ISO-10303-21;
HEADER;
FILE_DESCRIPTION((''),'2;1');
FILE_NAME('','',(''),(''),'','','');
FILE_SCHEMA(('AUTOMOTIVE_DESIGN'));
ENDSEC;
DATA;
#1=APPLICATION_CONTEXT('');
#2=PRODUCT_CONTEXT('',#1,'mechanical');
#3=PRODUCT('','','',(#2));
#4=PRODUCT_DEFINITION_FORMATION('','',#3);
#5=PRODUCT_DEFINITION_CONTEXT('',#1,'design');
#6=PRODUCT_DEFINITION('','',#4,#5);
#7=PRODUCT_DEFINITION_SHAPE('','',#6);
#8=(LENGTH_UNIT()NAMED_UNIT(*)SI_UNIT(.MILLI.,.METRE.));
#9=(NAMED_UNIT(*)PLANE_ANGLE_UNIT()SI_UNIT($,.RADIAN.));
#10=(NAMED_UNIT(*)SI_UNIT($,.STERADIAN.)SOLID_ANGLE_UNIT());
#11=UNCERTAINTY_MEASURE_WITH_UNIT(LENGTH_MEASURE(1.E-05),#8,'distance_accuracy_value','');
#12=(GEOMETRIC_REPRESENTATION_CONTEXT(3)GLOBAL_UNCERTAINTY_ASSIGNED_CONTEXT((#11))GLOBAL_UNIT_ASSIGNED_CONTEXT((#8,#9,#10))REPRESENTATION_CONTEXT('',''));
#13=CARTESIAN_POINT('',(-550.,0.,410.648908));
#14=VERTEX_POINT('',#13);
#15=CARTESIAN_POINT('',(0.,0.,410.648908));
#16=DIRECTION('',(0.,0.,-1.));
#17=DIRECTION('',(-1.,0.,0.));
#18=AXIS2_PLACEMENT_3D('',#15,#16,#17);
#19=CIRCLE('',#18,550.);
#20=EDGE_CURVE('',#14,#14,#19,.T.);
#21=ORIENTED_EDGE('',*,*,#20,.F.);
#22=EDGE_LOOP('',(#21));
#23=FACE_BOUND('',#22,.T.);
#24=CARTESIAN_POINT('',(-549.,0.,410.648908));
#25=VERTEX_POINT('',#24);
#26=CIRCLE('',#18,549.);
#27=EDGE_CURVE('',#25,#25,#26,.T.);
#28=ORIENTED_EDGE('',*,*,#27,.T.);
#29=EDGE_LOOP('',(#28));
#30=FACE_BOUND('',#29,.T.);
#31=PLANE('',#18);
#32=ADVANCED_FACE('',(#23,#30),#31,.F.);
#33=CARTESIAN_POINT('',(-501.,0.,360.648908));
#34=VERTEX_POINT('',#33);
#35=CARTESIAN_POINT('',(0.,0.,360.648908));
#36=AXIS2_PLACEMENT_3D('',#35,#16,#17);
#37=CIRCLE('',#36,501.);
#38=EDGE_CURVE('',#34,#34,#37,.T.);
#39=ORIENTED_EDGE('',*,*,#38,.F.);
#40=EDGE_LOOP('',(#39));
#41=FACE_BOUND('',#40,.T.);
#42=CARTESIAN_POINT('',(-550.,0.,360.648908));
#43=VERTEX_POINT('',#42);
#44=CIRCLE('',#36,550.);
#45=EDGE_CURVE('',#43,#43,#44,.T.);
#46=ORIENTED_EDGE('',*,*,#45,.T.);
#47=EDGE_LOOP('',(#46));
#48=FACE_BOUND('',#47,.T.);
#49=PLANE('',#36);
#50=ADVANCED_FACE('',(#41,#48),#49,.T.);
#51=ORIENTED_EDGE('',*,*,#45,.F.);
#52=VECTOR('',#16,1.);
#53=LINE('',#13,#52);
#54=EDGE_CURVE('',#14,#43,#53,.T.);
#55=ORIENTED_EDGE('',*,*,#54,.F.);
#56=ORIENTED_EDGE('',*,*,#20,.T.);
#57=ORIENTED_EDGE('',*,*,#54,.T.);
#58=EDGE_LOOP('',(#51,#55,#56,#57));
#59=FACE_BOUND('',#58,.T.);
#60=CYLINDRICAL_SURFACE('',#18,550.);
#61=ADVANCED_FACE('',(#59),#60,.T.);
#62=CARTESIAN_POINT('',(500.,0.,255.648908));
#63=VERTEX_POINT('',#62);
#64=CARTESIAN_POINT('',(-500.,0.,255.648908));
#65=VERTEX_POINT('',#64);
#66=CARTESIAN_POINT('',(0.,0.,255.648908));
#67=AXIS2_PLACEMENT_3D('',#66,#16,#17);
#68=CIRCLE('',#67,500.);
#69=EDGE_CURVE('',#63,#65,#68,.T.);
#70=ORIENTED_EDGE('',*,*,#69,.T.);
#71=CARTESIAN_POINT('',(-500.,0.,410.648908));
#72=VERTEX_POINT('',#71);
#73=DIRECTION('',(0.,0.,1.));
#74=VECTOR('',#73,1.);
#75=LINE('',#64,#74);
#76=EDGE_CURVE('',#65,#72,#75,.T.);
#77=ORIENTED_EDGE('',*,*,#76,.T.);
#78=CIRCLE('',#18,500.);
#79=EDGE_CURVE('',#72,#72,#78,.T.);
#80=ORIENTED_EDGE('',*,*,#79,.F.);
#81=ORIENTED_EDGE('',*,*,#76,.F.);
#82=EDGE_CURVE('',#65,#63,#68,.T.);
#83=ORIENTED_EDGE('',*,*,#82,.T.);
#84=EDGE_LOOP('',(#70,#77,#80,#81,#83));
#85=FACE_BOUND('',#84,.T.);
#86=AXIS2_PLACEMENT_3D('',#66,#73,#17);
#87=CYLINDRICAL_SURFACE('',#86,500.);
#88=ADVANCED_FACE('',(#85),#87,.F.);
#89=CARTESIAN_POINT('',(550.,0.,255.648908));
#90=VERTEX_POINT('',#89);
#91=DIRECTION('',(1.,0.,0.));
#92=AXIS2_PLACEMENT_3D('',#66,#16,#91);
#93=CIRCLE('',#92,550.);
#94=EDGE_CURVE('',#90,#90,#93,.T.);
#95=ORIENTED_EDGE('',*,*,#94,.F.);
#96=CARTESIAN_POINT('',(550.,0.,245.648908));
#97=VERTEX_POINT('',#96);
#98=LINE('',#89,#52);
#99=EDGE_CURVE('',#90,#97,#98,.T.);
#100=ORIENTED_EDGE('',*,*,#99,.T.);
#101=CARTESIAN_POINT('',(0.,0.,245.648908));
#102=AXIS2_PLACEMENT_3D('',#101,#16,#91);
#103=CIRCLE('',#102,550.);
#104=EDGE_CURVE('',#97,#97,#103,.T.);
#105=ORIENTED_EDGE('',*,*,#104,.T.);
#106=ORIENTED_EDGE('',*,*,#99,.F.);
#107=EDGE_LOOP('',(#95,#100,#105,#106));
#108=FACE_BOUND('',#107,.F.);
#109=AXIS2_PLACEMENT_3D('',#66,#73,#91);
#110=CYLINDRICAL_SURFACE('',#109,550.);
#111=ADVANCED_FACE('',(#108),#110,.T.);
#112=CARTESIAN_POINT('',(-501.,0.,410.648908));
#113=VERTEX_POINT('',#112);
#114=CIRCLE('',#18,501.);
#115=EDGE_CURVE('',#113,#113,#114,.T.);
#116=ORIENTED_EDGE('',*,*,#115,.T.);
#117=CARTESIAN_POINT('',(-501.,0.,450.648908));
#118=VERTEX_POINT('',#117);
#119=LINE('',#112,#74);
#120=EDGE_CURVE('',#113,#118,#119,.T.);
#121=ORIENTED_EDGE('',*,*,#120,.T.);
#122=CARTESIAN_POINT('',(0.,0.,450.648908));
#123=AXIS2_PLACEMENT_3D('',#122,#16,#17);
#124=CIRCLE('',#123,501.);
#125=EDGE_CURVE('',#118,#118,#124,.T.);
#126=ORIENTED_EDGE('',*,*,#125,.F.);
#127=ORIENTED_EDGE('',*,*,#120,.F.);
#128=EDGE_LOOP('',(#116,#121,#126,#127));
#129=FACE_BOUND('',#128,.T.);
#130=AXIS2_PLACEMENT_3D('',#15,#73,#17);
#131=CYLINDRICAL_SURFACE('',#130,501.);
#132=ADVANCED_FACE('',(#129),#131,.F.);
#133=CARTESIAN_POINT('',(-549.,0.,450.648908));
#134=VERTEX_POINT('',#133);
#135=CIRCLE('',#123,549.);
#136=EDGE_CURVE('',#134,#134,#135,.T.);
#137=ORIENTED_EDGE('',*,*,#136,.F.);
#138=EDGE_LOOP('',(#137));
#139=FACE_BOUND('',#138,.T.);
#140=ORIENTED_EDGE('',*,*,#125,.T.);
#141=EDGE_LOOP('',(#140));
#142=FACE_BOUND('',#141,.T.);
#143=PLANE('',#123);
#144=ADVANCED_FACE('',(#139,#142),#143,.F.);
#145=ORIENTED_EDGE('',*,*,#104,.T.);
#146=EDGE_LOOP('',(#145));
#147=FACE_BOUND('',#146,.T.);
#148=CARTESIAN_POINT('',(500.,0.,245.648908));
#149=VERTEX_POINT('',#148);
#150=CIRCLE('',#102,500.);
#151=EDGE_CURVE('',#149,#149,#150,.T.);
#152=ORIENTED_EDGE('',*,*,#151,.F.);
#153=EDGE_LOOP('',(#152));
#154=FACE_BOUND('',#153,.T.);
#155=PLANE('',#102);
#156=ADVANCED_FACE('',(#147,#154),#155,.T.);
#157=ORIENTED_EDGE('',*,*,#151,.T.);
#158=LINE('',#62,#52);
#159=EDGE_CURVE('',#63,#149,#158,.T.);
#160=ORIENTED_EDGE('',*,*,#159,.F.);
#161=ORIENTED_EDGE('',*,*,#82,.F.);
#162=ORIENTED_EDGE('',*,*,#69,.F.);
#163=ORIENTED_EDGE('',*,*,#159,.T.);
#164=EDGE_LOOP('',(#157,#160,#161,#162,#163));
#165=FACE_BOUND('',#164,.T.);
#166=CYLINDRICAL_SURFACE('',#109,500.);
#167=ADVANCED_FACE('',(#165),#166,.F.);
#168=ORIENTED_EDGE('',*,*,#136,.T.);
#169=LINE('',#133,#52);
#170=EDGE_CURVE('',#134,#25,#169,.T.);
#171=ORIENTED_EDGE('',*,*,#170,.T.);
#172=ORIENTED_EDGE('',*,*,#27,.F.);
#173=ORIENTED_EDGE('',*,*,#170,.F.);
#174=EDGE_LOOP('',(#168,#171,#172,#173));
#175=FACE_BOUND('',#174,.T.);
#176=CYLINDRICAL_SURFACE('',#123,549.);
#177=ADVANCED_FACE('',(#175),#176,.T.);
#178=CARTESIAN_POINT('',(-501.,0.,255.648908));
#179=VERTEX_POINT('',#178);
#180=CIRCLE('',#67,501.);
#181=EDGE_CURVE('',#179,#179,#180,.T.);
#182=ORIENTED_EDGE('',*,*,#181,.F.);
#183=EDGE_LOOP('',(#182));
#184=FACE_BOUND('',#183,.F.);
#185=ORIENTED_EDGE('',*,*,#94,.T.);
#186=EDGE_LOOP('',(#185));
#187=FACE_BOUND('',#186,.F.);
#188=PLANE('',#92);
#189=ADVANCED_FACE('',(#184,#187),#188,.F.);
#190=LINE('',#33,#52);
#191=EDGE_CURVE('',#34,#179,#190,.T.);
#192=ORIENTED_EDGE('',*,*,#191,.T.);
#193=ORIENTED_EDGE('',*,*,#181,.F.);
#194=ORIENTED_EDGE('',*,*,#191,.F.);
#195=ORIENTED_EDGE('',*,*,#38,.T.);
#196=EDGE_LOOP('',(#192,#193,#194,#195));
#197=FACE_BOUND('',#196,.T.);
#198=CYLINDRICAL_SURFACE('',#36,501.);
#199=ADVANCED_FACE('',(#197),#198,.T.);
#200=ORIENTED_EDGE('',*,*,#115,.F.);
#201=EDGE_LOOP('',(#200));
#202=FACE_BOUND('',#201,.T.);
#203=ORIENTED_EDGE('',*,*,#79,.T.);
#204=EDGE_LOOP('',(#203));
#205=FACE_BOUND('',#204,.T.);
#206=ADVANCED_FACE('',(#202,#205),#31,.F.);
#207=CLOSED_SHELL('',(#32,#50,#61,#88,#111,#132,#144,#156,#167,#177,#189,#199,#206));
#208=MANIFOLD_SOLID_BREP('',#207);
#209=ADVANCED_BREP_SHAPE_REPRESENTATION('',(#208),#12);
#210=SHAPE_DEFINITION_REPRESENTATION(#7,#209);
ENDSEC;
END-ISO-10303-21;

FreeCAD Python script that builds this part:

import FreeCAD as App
import Part
import Sketcher
from FreeCAD import Vector


def add_polygon(sketch, points):
    """Adds a closed chain of lines whose ends are joined by coincident constraints."""
    first, n = sketch.GeometryCount, len(points)
    for a, b in zip(points, points[1:] + points[:1]):
        sketch.addGeometry(Part.LineSegment(App.Vector(*a, 0), App.Vector(*b, 0)), False)
    for i in range(n):
        sketch.addConstraint(Sketcher.Constraint("Coincident", first + i, 2, first + (i + 1) % n, 1))

doc = App.newDocument("Part")
body = doc.addObject("PartDesign::Body", "Body")

# Sketch on XZ plane
sketch1 = body.newObject("Sketcher::SketchObject", "Sketch")
sketch1.AttachmentSupport = (doc.getObject("XZ_Plane"), [""])
sketch1.MapMode = "FlatFace"
add_polygon(sketch1, [(-500, 255.6), (-500, 410.6), (-501, 410.6), (-501, 450.6), (-549, 450.6), (-549, 410.6), (-550, 410.6), (-550, 360.6), (-501, 360.6), (-501, 255.6)])  # lines 0-9
sketch1.addConstraint(Sketcher.Constraint("Vertical", 0))
sketch1.addConstraint(Sketcher.Constraint("Horizontal", 1))
sketch1.addConstraint(Sketcher.Constraint("Vertical", 2))
sketch1.addConstraint(Sketcher.Constraint("Horizontal", 3))
sketch1.addConstraint(Sketcher.Constraint("Vertical", 4))
sketch1.addConstraint(Sketcher.Constraint("Horizontal", 5))
sketch1.addConstraint(Sketcher.Constraint("Vertical", 6))
sketch1.addConstraint(Sketcher.Constraint("Horizontal", 7))
sketch1.addConstraint(Sketcher.Constraint("Vertical", 8))
sketch1.addConstraint(Sketcher.Constraint("Horizontal", 9))
sketch1.addConstraint(Sketcher.Constraint("Horizontal", 1, 2, 4, 2))
sketch1.addConstraint(Sketcher.Constraint("Vertical", 2, 2, 7, 2))
sketch1.addConstraint(Sketcher.Constraint("Equal", 1, 5))
sketch1.addConstraint(Sketcher.Constraint("DistanceX", 1, 2, 1, 1, 1.0))
sketch1.addConstraint(Sketcher.Constraint("DistanceX", 3, 2, 3, 1, 48.0))
sketch1.addConstraint(Sketcher.Constraint("DistanceY", 0, 1, 0, 2, 155.0))
sketch1.addConstraint(Sketcher.Constraint("DistanceY", 2, 1, 2, 2, 40.0))
sketch1.addConstraint(Sketcher.Constraint("DistanceY", 6, 2, 6, 1, 50.0))
sketch1.addConstraint(Sketcher.Constraint("DistanceX", 0, 2, -1, 1, 500.0))
sketch1.addConstraint(Sketcher.Constraint("DistanceY", -1, 1, 0, 2, 410.648908))
revolution = body.newObject("PartDesign::Revolution", "Revolution")
revolution.Profile = sketch1
revolution.ReferenceAxis = (sketch1, ["V_Axis"])
revolution.Angle = 360

# Sketch on XY plane
sketch2 = body.newObject("Sketcher::SketchObject", "Sketch001")
sketch2.AttachmentSupport = (doc.getObject("XY_Plane"), [""])
sketch2.MapMode = "FlatFace"
sketch2.AttachmentOffset = App.Placement(Vector(0, 0, 255.648908), App.Rotation())
sketch2.addGeometry(Part.Circle(Vector(0, 0, 0), Vector(0, 0, 1), 550), False)
sketch2.addGeometry(Part.Circle(Vector(0, 0, 0), Vector(0, 0, 1), 500), False)
sketch2.addConstraint(Sketcher.Constraint("Coincident", 0, 3, -1, 1))
sketch2.addConstraint(Sketcher.Constraint("Coincident", 1, 3, -1, 1))
sketch2.addConstraint(Sketcher.Constraint("Diameter", 0, 1100.0))
sketch2.addConstraint(Sketcher.Constraint("Diameter", 1, 1000.0))
pad1 = body.newObject("PartDesign::Pad", "Pad")
pad1.Profile = sketch2
pad1.Length = 10
pad1.Reversed = True

doc.recompute()
